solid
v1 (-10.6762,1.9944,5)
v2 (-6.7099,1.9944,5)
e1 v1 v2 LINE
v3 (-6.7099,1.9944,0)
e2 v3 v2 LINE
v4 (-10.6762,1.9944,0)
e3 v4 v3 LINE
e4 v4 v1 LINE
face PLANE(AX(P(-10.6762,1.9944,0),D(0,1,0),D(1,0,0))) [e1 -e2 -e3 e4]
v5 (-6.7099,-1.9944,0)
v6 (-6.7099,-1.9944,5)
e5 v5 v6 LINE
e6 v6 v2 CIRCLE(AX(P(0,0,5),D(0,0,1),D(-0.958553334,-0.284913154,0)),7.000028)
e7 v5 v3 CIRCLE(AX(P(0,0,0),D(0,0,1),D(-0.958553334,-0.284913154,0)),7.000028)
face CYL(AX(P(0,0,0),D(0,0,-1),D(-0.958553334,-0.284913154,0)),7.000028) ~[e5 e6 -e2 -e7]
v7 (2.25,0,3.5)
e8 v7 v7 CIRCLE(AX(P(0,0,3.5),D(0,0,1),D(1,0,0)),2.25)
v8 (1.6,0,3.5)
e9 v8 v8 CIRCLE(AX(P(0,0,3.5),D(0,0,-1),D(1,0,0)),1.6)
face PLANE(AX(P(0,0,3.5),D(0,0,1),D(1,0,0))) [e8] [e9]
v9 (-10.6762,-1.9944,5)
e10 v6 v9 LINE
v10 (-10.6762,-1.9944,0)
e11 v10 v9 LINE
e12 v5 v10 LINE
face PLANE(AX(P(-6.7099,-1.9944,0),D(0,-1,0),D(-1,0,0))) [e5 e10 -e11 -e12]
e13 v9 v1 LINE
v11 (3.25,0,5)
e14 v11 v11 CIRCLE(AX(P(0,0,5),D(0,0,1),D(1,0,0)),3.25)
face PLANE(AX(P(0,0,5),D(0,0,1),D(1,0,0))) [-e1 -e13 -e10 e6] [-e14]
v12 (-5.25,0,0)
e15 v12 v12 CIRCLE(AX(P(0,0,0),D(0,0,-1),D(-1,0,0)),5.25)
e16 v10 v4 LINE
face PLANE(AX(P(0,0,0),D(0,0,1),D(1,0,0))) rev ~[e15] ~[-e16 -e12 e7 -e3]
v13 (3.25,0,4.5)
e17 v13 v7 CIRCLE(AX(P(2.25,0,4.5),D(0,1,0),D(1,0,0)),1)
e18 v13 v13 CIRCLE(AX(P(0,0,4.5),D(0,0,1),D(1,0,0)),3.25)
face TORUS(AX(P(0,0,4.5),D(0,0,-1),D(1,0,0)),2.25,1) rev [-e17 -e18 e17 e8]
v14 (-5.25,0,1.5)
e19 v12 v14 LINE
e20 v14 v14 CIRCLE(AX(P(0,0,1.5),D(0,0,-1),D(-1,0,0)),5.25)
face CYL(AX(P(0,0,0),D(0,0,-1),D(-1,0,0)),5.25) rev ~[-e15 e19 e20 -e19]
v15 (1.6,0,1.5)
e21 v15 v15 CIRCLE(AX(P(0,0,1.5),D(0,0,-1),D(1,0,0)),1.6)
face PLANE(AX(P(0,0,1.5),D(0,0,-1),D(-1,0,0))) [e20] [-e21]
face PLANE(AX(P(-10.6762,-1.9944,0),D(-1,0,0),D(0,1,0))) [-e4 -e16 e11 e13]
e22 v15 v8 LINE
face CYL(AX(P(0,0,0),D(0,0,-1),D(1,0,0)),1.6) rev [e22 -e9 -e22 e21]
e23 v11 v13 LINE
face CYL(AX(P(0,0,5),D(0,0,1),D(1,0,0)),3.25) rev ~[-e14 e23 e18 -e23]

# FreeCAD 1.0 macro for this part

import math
import FreeCAD as App
import Part
import Sketcher

V = App.Vector


def edges_at(feature, points):
    """Names of the edges that pass closest to the given points."""
    edges = feature.Shape.Edges
    near = lambda p: min(range(len(edges)), key=lambda i: edges[i].distToShape(Part.Vertex(*p))[0])
    return sorted({f"Edge{near(p) + 1}" for p in points})

doc = App.newDocument("Part")
body = doc.addObject("PartDesign::Body", "Body")

sketch1 = doc.addObject("Sketcher::SketchObject", "Sketch")
body.addObject(sketch1)
sketch1.AttachmentSupport = (doc.XY_Plane, [""])
sketch1.MapMode = "FlatFace"
sketch1.addGeometry([
    Part.LineSegment(V(-10.7, -2, 0), V(-6.7, -2, 0)),
    Part.ArcOfCircle(Part.Circle(V(0, 0, 0), V(0, 0, 1), 7), math.radians(-163), math.radians(163)),
    Part.LineSegment(V(-6.7, 2, 0), V(-10.7, 2, 0)),
    Part.LineSegment(V(-10.7, 2, 0), V(-10.7, -2, 0)),
    Part.Circle(V(0, 0, 0), V(0, 0, 1), 1.6),
], False)
sketch1.addConstraint([
    Sketcher.Constraint("Coincident", 0, 2, 1, 1),
    Sketcher.Constraint("Coincident", 1, 2, 2, 1),
    Sketcher.Constraint("Coincident", 2, 2, 3, 1),
    Sketcher.Constraint("Coincident", 3, 2, 0, 1),
    Sketcher.Constraint("Horizontal", 0),
    Sketcher.Constraint("Horizontal", 2),
    Sketcher.Constraint("Vertical", 3),
    Sketcher.Constraint("Coincident", 1, 3, -1, 1),
    Sketcher.Constraint("Coincident", 4, 3, -1, 1),
    Sketcher.Constraint("Vertical", 0, 2, 1, 2),
    Sketcher.Constraint("Radius", 1, 7.0),
    Sketcher.Constraint("Diameter", 4, 3.2),
    Sketcher.Constraint("DistanceX", 0, 2, -1, 1, 6.71),
    Sketcher.Constraint("DistanceX", 0, 1, 0, 2, 3.9663),
])
pad1 = doc.addObject("PartDesign::Pad", "Pad")
body.addObject(pad1)
pad1.Profile = sketch1
pad1.Length = 5

sketch2 = doc.addObject("Sketcher::SketchObject", "Sketch001")
body.addObject(sketch2)
sketch2.AttachmentSupport = (doc.XY_Plane, [""])
sketch2.MapMode = "FlatFace"
sketch2.addGeometry(Part.Circle(V(0, 0, 0), V(0, 0, 1), 5), False)
sketch2.addConstraint([
    Sketcher.Constraint("Coincident", 0, 3, -1, 1),
    Sketcher.Constraint("Diameter", 0, 10.5),
])
pocket1 = doc.addObject("PartDesign::Pocket", "Pocket")
body.addObject(pocket1)
pocket1.Profile = sketch2
pocket1.Length = 1.5
pocket1.Reversed = True

sketch3 = doc.addObject("Sketcher::SketchObject", "Sketch002")
body.addObject(sketch3)
sketch3.AttachmentSupport = (doc.XY_Plane, [""])
sketch3.MapMode = "FlatFace"
sketch3.AttachmentOffset = App.Placement(V(0, 0, 5), App.Rotation())
sketch3.addGeometry(Part.Circle(V(0, 0, 0), V(0, 0, 1), 3.2), False)
sketch3.addConstraint([
    Sketcher.Constraint("Coincident", 0, 3, -1, 1),
    Sketcher.Constraint("Diameter", 0, 6.5),
])
pocket2 = doc.addObject("PartDesign::Pocket", "Pocket001")
body.addObject(pocket2)
pocket2.Profile = sketch3
pocket2.Length = 1.5
doc.recompute()

fillet = doc.addObject("PartDesign::Fillet", "Fillet")
body.addObject(fillet)
fillet.Base = (pocket2, edges_at(pocket2, [(-3.25, 0, 3.5)]))
fillet.Radius = 1

doc.recompute()
